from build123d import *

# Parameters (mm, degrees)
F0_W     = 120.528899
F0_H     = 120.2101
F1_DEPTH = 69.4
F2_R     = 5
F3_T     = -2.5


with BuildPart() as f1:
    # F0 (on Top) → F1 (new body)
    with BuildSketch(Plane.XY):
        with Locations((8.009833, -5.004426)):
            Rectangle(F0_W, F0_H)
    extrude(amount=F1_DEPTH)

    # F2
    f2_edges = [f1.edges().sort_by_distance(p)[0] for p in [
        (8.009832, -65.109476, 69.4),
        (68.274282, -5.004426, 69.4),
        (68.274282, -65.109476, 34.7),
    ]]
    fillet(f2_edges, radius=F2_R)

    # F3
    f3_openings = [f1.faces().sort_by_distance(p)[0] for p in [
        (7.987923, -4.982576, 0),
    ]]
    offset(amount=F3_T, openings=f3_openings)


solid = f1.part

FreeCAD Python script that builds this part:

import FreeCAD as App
import Part
import Sketcher
from FreeCAD import Vector


def edges_at(feature, points):
    """Names of the edges that pass closest to the given points."""
    edges = feature.Shape.Edges
    near = lambda p: min(range(len(edges)), key=lambda i: edges[i].distToShape(Part.Vertex(*p))[0])
    return sorted({f"Edge{near(p) + 1}" for p in points})


def faces_at(feature, points):
    """Names of the faces that lie closest to the given points."""
    faces = feature.Shape.Faces
    near = lambda p: min(range(len(faces)), key=lambda i: faces[i].distToShape(Part.Vertex(*p))[0])
    return sorted({f"Face{near(p) + 1}" for p in points})

doc = App.newDocument("Part")
params = doc.addObject("Spreadsheet::Sheet", "Params")
for row, (alias, value) in enumerate([
    ("pad1_length", "69.4 mm"),
    ("fillet_radius", "5 mm"),
    ("thickness_wall", "2.5 mm"),
], start=1):
    params.set(f"A{row}", alias)
    params.set(f"B{row}", "=" + value)
    params.setAlias(f"B{row}", alias)

body = doc.addObject("PartDesign::Body", "Body")

# Sketch on XY plane
sketch1 = body.newObject("Sketcher::SketchObject", "Sketch")
sketch1.AttachmentSupport = (doc.getObject("XY_Plane"), [""])
sketch1.MapMode = "FlatFace"
sketch1.addGeometry(Part.LineSegment(Vector(-52.254616, 55.100624, 0), Vector(-52.254616, -65.109476, 0)), False)
sketch1.addGeometry(Part.LineSegment(Vector(-52.254616, -65.109476, 0), Vector(68.274282, -65.109476, 0)), False)
sketch1.addGeometry(Part.LineSegment(Vector(68.274282, -65.109476, 0), Vector(68.274282, 55.100624, 0)), False)
sketch1.addGeometry(Part.LineSegment(Vector(68.274282, 55.100624, 0), Vector(-52.254616, 55.100624, 0)), False)
sketch1.addConstraint(Sketcher.Constraint("Coincident", 0, 2, 1, 1))
sketch1.addConstraint(Sketcher.Constraint("Coincident", 1, 2, 2, 1))
sketch1.addConstraint(Sketcher.Constraint("Coincident", 2, 2, 3, 1))
sketch1.addConstraint(Sketcher.Constraint("Coincident", 3, 2, 0, 1))
sketch1.addConstraint(Sketcher.Constraint("Vertical", 0))
sketch1.addConstraint(Sketcher.Constraint("Horizontal", 1))
sketch1.addConstraint(Sketcher.Constraint("Vertical", 2))
sketch1.addConstraint(Sketcher.Constraint("Horizontal", 3))
sketch1.addConstraint(Sketcher.Constraint("DistanceX", 1, 1, 1, 2, 120.528899))
sketch1.addConstraint(Sketcher.Constraint("DistanceY", 0, 2, 0, 1, 120.2101))
sketch1.addConstraint(Sketcher.Constraint("DistanceX", 0, 2, -1, 1, 52.254616))
sketch1.addConstraint(Sketcher.Constraint("DistanceY", 0, 2, -1, 1, 65.109476))
pad1 = body.newObject("PartDesign::Pad", "Pad")
pad1.Profile = sketch1
pad1.setExpression("Length", "Params.pad1_length")
doc.recompute()

fillet = body.newObject("PartDesign::Fillet", "Fillet")
fillet.Base = (pad1, edges_at(pad1, [(8.01, -65.109, 69.4), (68.274, -5.004, 69.4), (68.274, -65.109, 34.7)]))
fillet.setExpression("Radius", "Params.fillet_radius")
doc.recompute()

thickness = body.newObject("PartDesign::Thickness", "Thickness")
thickness.Base = (fillet, faces_at(fillet, [(8.01, -5.004, 0)]))
thickness.setExpression("Value", "Params.thickness_wall")
thickness.Reversed = True
thickness.Join = "Arc"

doc.recompute()
